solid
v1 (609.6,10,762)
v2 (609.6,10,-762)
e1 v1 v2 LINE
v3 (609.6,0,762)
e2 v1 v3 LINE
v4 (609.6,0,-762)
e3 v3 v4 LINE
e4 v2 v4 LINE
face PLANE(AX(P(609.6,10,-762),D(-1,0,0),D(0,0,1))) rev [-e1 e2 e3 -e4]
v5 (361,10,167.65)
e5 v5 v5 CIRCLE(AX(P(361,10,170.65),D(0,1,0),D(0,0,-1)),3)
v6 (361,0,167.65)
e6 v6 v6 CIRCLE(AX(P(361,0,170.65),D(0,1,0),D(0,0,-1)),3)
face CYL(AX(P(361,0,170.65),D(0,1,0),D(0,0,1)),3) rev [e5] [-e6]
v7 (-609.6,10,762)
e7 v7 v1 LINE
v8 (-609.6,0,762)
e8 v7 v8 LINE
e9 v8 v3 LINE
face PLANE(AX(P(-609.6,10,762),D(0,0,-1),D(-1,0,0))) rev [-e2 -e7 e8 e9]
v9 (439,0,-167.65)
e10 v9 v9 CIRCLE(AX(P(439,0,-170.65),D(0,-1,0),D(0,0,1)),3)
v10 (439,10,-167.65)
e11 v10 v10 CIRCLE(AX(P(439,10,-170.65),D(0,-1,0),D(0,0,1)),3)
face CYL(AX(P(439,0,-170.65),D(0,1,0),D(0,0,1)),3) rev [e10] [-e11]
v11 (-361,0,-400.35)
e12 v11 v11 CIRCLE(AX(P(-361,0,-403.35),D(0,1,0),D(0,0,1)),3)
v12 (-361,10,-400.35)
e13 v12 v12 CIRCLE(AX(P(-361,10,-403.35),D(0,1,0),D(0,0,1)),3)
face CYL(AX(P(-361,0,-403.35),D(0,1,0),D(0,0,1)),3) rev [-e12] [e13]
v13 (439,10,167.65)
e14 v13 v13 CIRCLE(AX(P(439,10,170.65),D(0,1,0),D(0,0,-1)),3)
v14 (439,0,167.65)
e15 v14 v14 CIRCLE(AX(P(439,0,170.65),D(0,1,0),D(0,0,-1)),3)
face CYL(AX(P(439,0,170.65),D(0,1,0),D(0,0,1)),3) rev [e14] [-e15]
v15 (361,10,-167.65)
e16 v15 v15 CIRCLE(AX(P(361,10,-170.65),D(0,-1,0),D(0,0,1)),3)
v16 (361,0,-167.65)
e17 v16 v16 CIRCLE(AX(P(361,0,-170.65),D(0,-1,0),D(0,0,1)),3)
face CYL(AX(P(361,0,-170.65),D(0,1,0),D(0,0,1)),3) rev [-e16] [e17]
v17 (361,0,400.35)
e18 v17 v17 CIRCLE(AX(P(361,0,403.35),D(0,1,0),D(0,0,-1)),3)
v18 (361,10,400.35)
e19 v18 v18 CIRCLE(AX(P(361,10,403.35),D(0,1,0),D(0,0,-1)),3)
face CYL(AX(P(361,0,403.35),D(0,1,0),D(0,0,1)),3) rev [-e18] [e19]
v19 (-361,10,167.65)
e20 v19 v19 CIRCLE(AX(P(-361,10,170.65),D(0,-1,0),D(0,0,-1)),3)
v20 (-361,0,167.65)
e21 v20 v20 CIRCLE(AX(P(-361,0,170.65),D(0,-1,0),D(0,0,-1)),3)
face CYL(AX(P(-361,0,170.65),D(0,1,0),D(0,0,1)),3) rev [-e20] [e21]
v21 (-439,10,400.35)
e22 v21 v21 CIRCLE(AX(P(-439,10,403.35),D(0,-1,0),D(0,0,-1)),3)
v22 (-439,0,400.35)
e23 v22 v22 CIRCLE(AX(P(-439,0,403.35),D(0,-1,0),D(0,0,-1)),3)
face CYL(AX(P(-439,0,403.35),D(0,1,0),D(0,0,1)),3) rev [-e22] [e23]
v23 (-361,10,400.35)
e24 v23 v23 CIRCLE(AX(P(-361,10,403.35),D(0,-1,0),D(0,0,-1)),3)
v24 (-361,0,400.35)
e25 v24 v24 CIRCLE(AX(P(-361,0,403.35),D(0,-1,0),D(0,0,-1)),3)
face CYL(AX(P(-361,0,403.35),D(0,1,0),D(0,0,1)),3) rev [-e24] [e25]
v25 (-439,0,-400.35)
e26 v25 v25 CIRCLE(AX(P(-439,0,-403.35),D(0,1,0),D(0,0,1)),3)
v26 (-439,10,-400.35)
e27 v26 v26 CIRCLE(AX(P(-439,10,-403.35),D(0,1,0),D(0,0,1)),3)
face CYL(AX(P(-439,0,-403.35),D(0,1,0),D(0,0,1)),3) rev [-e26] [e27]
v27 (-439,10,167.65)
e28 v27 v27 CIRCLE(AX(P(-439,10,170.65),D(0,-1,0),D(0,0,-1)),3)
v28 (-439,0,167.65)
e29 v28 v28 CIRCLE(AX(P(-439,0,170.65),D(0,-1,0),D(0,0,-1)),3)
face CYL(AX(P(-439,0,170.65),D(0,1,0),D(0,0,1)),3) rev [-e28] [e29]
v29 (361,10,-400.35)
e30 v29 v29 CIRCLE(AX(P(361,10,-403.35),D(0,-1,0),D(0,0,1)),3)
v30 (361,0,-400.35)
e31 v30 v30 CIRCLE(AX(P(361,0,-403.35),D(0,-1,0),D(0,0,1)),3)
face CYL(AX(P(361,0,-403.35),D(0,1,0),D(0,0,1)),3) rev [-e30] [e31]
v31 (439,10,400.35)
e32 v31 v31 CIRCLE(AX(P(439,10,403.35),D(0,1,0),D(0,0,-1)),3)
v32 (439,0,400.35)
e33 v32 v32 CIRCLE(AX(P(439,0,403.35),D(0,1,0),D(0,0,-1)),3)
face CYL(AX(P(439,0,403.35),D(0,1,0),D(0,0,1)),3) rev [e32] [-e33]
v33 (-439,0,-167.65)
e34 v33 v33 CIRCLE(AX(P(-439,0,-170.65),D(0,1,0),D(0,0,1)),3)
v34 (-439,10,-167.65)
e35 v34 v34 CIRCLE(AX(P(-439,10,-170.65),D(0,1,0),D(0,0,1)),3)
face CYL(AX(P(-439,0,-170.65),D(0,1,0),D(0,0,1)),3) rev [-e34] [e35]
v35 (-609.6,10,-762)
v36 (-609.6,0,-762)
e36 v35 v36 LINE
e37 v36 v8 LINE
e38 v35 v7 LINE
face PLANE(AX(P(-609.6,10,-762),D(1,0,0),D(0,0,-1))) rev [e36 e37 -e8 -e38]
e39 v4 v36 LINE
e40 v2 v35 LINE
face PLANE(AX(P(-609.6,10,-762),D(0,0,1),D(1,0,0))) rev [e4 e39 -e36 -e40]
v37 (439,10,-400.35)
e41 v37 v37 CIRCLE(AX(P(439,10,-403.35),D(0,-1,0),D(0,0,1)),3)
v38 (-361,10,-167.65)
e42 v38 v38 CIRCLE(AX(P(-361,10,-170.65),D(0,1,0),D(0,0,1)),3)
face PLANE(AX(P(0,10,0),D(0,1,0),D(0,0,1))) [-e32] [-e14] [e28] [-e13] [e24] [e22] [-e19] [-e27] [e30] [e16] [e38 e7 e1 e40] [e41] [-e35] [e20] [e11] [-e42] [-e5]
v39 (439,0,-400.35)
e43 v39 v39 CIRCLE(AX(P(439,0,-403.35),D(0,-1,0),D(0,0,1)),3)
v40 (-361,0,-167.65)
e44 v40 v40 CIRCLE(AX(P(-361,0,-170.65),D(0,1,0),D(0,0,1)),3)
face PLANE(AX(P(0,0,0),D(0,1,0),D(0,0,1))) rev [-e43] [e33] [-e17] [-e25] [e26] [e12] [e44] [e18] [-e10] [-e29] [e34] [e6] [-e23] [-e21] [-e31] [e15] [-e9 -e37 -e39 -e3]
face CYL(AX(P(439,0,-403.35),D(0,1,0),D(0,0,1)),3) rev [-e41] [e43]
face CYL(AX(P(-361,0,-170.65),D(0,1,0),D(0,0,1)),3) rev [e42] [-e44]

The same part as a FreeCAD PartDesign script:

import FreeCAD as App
import Part
import Sketcher
from FreeCAD import Vector


def add_polygon(sketch, points):
    """Adds a closed chain of lines whose ends are joined by coincident constraints."""
    first, n = sketch.GeometryCount, len(points)
    for a, b in zip(points, points[1:] + points[:1]):
        sketch.addGeometry(Part.LineSegment(App.Vector(*a, 0), App.Vector(*b, 0)), False)
    for i in range(n):
        sketch.addConstraint(Sketcher.Constraint("Coincident", first + i, 2, first + (i + 1) % n, 1))

doc = App.newDocument("Part")
params = doc.addObject("Spreadsheet::Sheet", "Params")
for row, (alias, value) in enumerate([
    ("sketch1_height", "1524 mm"),
    ("sketch1_width", "1219.2 mm"),
    ("pad1_length", "10 mm"),
    ("sketch2_diameter", "6 mm"),
    ("sketch3_diameter", "6 mm"),
], start=1):
    params.set(f"A{row}", alias)
    params.set(f"B{row}", "=" + value)
    params.setAlias(f"B{row}", alias)

body = doc.addObject("PartDesign::Body", "Body")

# Sketch on XZ plane
sketch1 = body.newObject("Sketcher::SketchObject", "Sketch")
sketch1.AttachmentSupport = (doc.getObject("XZ_Plane"), [""])
sketch1.MapMode = "FlatFace"
add_polygon(sketch1, [(-609.6, -762), (-609.6, 762), (609.6, 762), (609.6, -762)])  # lines 0-3
sketch1.addConstraint([
    Sketcher.Constraint("Vertical", 0),
    Sketcher.Constraint("Horizontal", 1),
    Sketcher.Constraint("Vertical", 2),
    Sketcher.Constraint("Horizontal", 3),
    Sketcher.Constraint("Symmetric", 0, 2, 2, 2, -1, 1),
    Sketcher.Constraint("DistanceY", 0, 1, 0, 2, 1524.0),
    Sketcher.Constraint("DistanceX", 1, 1, 1, 2, 1219.2),
])
sketch1.setExpression("Constraints[9]", "Params.sketch1_height")
sketch1.setExpression("Constraints[10]", "Params.sketch1_width")
pad1 = body.newObject("PartDesign::Pad", "Pad")
pad1.Profile = sketch1
pad1.setExpression("Length", "Params.pad1_length")
pad1.Reversed = True

# Sketch on XZ plane
sketch2 = body.newObject("Sketcher::SketchObject", "Sketch001")
sketch2.AttachmentSupport = (doc.getObject("XZ_Plane"), [""])
sketch2.MapMode = "FlatFace"
sketch2.AttachmentOffset = App.Placement(Vector(0, 0, -10), App.Rotation())
sketch2.addGeometry([
    Part.Circle(Vector(-439, -403.35, 0), Vector(0, 0, 1), 3),
    Part.Circle(Vector(-361, -403.35, 0), Vector(0, 0, 1), 3),
    Part.Circle(Vector(-361, -170.65, 0), Vector(0, 0, 1), 3),
    Part.Circle(Vector(-439, -170.65, 0), Vector(0, 0, 1), 3),
], False)
sketch2.addConstraint([
    Sketcher.Constraint("Equal", 0, 1),
    Sketcher.Constraint("Equal", 1, 2),
    Sketcher.Constraint("Equal", 2, 3),
    Sketcher.Constraint("Horizontal", 0, 3, 1, 3),
    Sketcher.Constraint("Horizontal", 2, 3, 3, 3),
    Sketcher.Constraint("Vertical", 1, 3, 2, 3),
    Sketcher.Constraint("Vertical", 0, 3, 3, 3),
    Sketcher.Constraint("Diameter", 0, 6.0),
    Sketcher.Constraint("DistanceX", 0, 3, -1, 1, 439.0),
    Sketcher.Constraint("DistanceX", 1, 3, -1, 1, 361.0),
    Sketcher.Constraint("DistanceY", 1, 3, 2, 3, 232.7),
    Sketcher.Constraint("DistanceY", 0, 3, -1, 1, 403.35),
])
sketch2.setExpression("Constraints[7]", "Params.sketch2_diameter")
pocket1 = body.newObject("PartDesign::Pocket", "Pocket")
pocket1.Profile = sketch2
pocket1.Type = "ThroughAll"
pocket1.Reversed = True
doc.recompute()

mirrored = body.newObject("PartDesign::Mirrored", "Mirrored")
mirrored.Originals = [pocket1]
mirrored.MirrorPlane = (doc.getObject("YZ_Plane"), [""])
body.Tip = mirrored
doc.recompute()

mirrored2 = body.newObject("PartDesign::Mirrored", "Mirrored001")
mirrored2.Originals = [pocket1]
mirrored2.MirrorPlane = (doc.getObject("XY_Plane"), [""])
body.Tip = mirrored2

# Sketch on XZ plane
sketch3 = body.newObject("Sketcher::SketchObject", "Sketch002")
sketch3.AttachmentSupport = (doc.getObject("XZ_Plane"), [""])
sketch3.MapMode = "FlatFace"
sketch3.AttachmentOffset = App.Placement(Vector(0, 0, -10), App.Rotation())
sketch3.addGeometry([
    Part.Circle(Vector(439, 403.35, 0), Vector(0, 0, 1), 3),
    Part.Circle(Vector(361, 403.35, 0), Vector(0, 0, 1), 3),
    Part.Circle(Vector(361, 170.65, 0), Vector(0, 0, 1), 3),
    Part.Circle(Vector(439, 170.65, 0), Vector(0, 0, 1), 3),
], False)
sketch3.addConstraint([
    Sketcher.Constraint("Equal", 0, 1),
    Sketcher.Constraint("Equal", 1, 2),
    Sketcher.Constraint("Equal", 2, 3),
    Sketcher.Constraint("Horizontal", 0, 3, 1, 3),
    Sketcher.Constraint("Horizontal", 2, 3, 3, 3),
    Sketcher.Constraint("Vertical", 1, 3, 2, 3),
    Sketcher.Constraint("Vertical", 0, 3, 3, 3),
    Sketcher.Constraint("Diameter", 0, 6.0),
    Sketcher.Constraint("DistanceX", -1, 1, 0, 3, 439.0),
    Sketcher.Constraint("DistanceX", -1, 1, 1, 3, 361.0),
    Sketcher.Constraint("DistanceY", 2, 3, 1, 3, 232.7),
    Sketcher.Constraint("DistanceY", -1, 1, 0, 3, 403.35),
])
sketch3.setExpression("Constraints[7]", "Params.sketch3_diameter")
pocket2 = body.newObject("PartDesign::Pocket", "Pocket001")
pocket2.Profile = sketch3
pocket2.Type = "ThroughAll"
pocket2.Reversed = True

doc.recompute()
